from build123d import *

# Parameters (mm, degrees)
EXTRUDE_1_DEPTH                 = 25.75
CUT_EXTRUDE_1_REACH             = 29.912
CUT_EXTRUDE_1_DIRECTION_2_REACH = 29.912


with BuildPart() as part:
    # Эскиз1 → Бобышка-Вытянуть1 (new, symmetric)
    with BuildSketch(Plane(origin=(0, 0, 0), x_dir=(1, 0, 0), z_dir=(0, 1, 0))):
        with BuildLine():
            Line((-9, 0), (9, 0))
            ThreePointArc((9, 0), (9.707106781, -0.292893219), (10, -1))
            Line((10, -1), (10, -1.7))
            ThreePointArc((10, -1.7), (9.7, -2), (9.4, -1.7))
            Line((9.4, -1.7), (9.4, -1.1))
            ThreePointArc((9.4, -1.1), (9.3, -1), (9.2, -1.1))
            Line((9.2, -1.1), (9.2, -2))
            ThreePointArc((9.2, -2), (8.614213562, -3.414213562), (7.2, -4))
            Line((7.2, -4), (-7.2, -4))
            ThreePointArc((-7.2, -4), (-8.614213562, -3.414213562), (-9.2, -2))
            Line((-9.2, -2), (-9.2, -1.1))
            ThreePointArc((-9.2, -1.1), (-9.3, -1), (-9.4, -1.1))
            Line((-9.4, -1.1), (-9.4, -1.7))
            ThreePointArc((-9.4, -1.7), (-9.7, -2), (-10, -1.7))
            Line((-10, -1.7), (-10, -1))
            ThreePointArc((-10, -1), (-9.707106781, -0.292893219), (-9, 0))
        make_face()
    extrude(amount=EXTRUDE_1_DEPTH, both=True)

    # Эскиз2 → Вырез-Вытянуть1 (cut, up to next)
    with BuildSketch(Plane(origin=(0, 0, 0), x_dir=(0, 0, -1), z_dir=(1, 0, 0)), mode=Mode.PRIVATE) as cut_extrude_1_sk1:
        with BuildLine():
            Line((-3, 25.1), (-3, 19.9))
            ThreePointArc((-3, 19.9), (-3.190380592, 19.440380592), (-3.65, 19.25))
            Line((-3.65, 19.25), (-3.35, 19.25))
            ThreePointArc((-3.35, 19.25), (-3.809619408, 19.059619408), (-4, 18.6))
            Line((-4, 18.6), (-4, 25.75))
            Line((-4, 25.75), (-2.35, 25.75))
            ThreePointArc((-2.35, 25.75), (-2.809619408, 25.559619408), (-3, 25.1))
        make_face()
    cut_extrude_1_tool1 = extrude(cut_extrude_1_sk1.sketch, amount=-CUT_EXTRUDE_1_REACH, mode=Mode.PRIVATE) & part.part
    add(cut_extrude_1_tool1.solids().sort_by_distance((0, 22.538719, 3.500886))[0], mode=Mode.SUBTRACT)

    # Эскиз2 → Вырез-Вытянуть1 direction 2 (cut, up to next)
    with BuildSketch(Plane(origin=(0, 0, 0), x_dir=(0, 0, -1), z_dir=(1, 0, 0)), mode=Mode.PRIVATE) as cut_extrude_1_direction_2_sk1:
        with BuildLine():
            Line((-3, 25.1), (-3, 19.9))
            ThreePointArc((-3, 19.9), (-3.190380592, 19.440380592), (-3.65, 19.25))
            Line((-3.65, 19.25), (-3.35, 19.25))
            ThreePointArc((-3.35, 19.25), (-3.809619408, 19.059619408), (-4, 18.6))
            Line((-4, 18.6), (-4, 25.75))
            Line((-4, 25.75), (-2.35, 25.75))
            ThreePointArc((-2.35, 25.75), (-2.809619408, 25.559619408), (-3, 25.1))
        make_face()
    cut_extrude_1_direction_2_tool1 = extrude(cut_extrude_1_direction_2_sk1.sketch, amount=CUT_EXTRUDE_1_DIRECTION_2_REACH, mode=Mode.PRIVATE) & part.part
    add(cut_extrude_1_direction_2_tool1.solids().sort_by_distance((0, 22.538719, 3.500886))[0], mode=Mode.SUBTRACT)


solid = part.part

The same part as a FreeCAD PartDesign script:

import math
import FreeCAD as App
import Part
import Sketcher

V = App.Vector
Q = App.Units.Quantity

doc = App.newDocument("Part")
params = doc.addObject("Spreadsheet::Sheet", "Params")
for row, (alias, value) in enumerate([
    ("sketch1_radius", "1 mm"),
    ("sketch1_radius2", "2 mm"),
    ("sketch1_radius3", "0.3 mm"),
    ("sketch1_radius4", "0.1 mm"),
    ("sketch1_width", "18 mm"),
    ("pad1_length", "51.5 mm"),
    ("sketch2_radius", "0.65 mm"),
    ("sketch2_width", "5.2 mm"),
    ("sketch2_height", "0.3 mm"),
    ("sketch3_radius", "0.65 mm"),
    ("sketch3_width", "5.2 mm"),
    ("sketch3_height", "0.3 mm"),
], start=1):
    params.set(f"A{row}", alias)
    params.set(f"B{row}", "=" + value)
    params.setAlias(f"B{row}", alias)

body = doc.addObject("PartDesign::Body", "Body")

sketch1 = doc.addObject("Sketcher::SketchObject", "Sketch")
body.addObject(sketch1)
sketch1.AttachmentSupport = (doc.XZ_Plane, [""])
sketch1.MapMode = "FlatFace"
sketch1.addGeometry(Part.LineSegment(V(9, 0, 0), V(-9, 0, 0)), False)
sketch1.addGeometry(Part.ArcOfCircle(Part.Circle(V(-9, 1, 0), V(0, 0, 1), 1), math.radians(-180), math.radians(-90)), False)
sketch1.addGeometry(Part.LineSegment(V(-10, 1, 0), V(-10, 1.7, 0)), False)
sketch1.addGeometry(Part.ArcOfCircle(Part.Circle(V(-9.7, 1.7, 0), V(0, 0, 1), 0.3), math.radians(0), math.radians(180)), False)
sketch1.addGeometry(Part.LineSegment(V(-9.4, 1.7, 0), V(-9.4, 1.1, 0)), False)
sketch1.addGeometry(Part.ArcOfCircle(Part.Circle(V(-9.3, 1.1, 0), V(0, 0, 1), 0.1), math.radians(180), math.radians(360)), False)
sketch1.addGeometry(Part.LineSegment(V(-9.2, 1.1, 0), V(-9.2, 2, 0)), False)
sketch1.addGeometry(Part.ArcOfCircle(Part.Circle(V(-7.2, 2, 0), V(0, 0, 1), 2), math.radians(90), math.radians(180)), False)
sketch1.addGeometry(Part.LineSegment(V(-7.2, 4, 0), V(7.2, 4, 0)), False)
sketch1.addGeometry(Part.ArcOfCircle(Part.Circle(V(7.2, 2, 0), V(0, 0, 1), 2), math.radians(0), math.radians(90)), False)
sketch1.addGeometry(Part.LineSegment(V(9.2, 2, 0), V(9.2, 1.1, 0)), False)
sketch1.addGeometry(Part.ArcOfCircle(Part.Circle(V(9.3, 1.1, 0), V(0, 0, 1), 0.1), math.radians(180), math.radians(360)), False)
sketch1.addGeometry(Part.LineSegment(V(9.4, 1.1, 0), V(9.4, 1.7, 0)), False)
sketch1.addGeometry(Part.ArcOfCircle(Part.Circle(V(9.7, 1.7, 0), V(0, 0, 1), 0.3), math.radians(0), math.radians(180)), False)
sketch1.addGeometry(Part.LineSegment(V(10, 1.7, 0), V(10, 1, 0)), False)
sketch1.addGeometry(Part.ArcOfCircle(Part.Circle(V(9, 1, 0), V(0, 0, 1), 1), math.radians(-90), math.radians(0)), False)
sketch1.addConstraint(Sketcher.Constraint("Tangent", 0, 2, 1, 2))
sketch1.addConstraint(Sketcher.Constraint("Tangent", 1, 1, 2, 1))
sketch1.addConstraint(Sketcher.Constraint("Tangent", 2, 2, 3, 2))
sketch1.addConstraint(Sketcher.Constraint("Tangent", 3, 1, 4, 1))
sketch1.addConstraint(Sketcher.Constraint("Tangent", 4, 2, 5, 1))
sketch1.addConstraint(Sketcher.Constraint("Tangent", 5, 2, 6, 1))
sketch1.addConstraint(Sketcher.Constraint("Tangent", 6, 2, 7, 2))
sketch1.addConstraint(Sketcher.Constraint("Tangent", 7, 1, 8, 1))
sketch1.addConstraint(Sketcher.Constraint("Tangent", 8, 2, 9, 2))
sketch1.addConstraint(Sketcher.Constraint("Tangent", 9, 1, 10, 1))
sketch1.addConstraint(Sketcher.Constraint("Tangent", 10, 2, 11, 1))
sketch1.addConstraint(Sketcher.Constraint("Tangent", 11, 2, 12, 1))
sketch1.addConstraint(Sketcher.Constraint("Tangent", 12, 2, 13, 2))
sketch1.addConstraint(Sketcher.Constraint("Tangent", 13, 1, 14, 1))
sketch1.addConstraint(Sketcher.Constraint("Tangent", 14, 2, 15, 2))
sketch1.addConstraint(Sketcher.Constraint("Tangent", 15, 1, 0, 1))
sketch1.addConstraint(Sketcher.Constraint("Horizontal", 0))
sketch1.addConstraint(Sketcher.Constraint("Vertical", 2))
sketch1.addConstraint(Sketcher.Constraint("Vertical", 4))
sketch1.addConstraint(Sketcher.Constraint("Vertical", 6))
sketch1.addConstraint(Sketcher.Constraint("Horizontal", 8))
sketch1.addConstraint(Sketcher.Constraint("Vertical", 10))
sketch1.addConstraint(Sketcher.Constraint("Vertical", 12))
sketch1.addConstraint(Sketcher.Constraint("Vertical", 14))
sketch1.addConstraint(Sketcher.Constraint("Equal", 7, 9))
sketch1.addConstraint(Sketcher.Constraint("Equal", 5, 11))
sketch1.addConstraint(Sketcher.Constraint("Equal", 3, 13))
sketch1.addConstraint(Sketcher.Constraint("Equal", 1, 15))
sketch1.addConstraint(Sketcher.Constraint("Symmetric", 0, 2, 15, 1, -1, 1))
sketch1.addConstraint(Sketcher.Constraint("Horizontal", 5, 3, 11, 3))
sketch1.addConstraint(Sketcher.Constraint("Horizontal", 3, 3, 13, 3))
sketch1.addConstraint(Sketcher.Constraint("Radius", 1, Q("1 mm")))
sketch1.addConstraint(Sketcher.Constraint("Radius", 7, Q("2 mm")))
sketch1.addConstraint(Sketcher.Constraint("Radius", 3, Q("0.3 mm")))
sketch1.addConstraint(Sketcher.Constraint("Radius", 5, Q("0.1 mm")))
sketch1.addConstraint(Sketcher.Constraint("DistanceX", 0, 2, 0, 1, Q("18 mm")))
sketch1.addConstraint(Sketcher.Constraint("DistanceY", 2, 1, 2, 2, Q("0.7 mm")))
sketch1.addConstraint(Sketcher.Constraint("DistanceY", 4, 2, 4, 1, Q("0.6 mm")))
sketch1.addConstraint(Sketcher.Constraint("DistanceY", 6, 1, 6, 2, Q("0.9 mm")))
sketch1.setExpression("Constraints[31]", "Params.sketch1_radius")
sketch1.setExpression("Constraints[32]", "Params.sketch1_radius2")
sketch1.setExpression("Constraints[33]", "Params.sketch1_radius3")
sketch1.setExpression("Constraints[34]", "Params.sketch1_radius4")
sketch1.setExpression("Constraints[35]", "Params.sketch1_width")
pad1 = doc.addObject("PartDesign::Pad", "Pad")
body.addObject(pad1)
pad1.Profile = sketch1
pad1.setExpression("Length", "Params.pad1_length")
pad1.Midplane = True

sketch2 = doc.addObject("Sketcher::SketchObject", "Sketch001")
body.addObject(sketch2)
sketch2.AttachmentSupport = (doc.YZ_Plane, [""])
sketch2.MapMode = "FlatFace"
sketch2.addGeometry(Part.LineSegment(V(19.9, 3, 0), V(25.1, 3, 0)), False)
sketch2.addGeometry(Part.ArcOfCircle(Part.Circle(V(25.1, 2.35, 0), V(0, 0, 1), 0.65), math.radians(0), math.radians(90)), False)
sketch2.addGeometry(Part.LineSegment(V(25.75, 2.35, 0), V(25.75, 4, 0)), False)
sketch2.addGeometry(Part.LineSegment(V(25.75, 4, 0), V(18.6, 4, 0)), False)
sketch2.addGeometry(Part.ArcOfCircle(Part.Circle(V(18.6, 3.35, 0), V(0, 0, 1), 0.65), math.radians(0), math.radians(90)), False)
sketch2.addGeometry(Part.LineSegment(V(19.25, 3.35, 0), V(19.25, 3.65, 0)), False)
sketch2.addGeometry(Part.ArcOfCircle(Part.Circle(V(19.9, 3.65, 0), V(0, 0, 1), 0.65), math.radians(180), math.radians(270)), False)
sketch2.addConstraint(Sketcher.Constraint("Tangent", 0, 2, 1, 2))
sketch2.addConstraint(Sketcher.Constraint("Tangent", 1, 1, 2, 1))
sketch2.addConstraint(Sketcher.Constraint("Coincident", 2, 2, 3, 1))
sketch2.addConstraint(Sketcher.Constraint("Tangent", 3, 2, 4, 2))
sketch2.addConstraint(Sketcher.Constraint("Tangent", 4, 1, 5, 1))
sketch2.addConstraint(Sketcher.Constraint("Tangent", 5, 2, 6, 1))
sketch2.addConstraint(Sketcher.Constraint("Tangent", 6, 2, 0, 1))
sketch2.addConstraint(Sketcher.Constraint("Horizontal", 0))
sketch2.addConstraint(Sketcher.Constraint("Vertical", 2))
sketch2.addConstraint(Sketcher.Constraint("Horizontal", 3))
sketch2.addConstraint(Sketcher.Constraint("Vertical", 5))
sketch2.addConstraint(Sketcher.Constraint("Equal", 1, 4))
sketch2.addConstraint(Sketcher.Constraint("Equal", 4, 6))
sketch2.addConstraint(Sketcher.Constraint("Radius", 1, Q("0.65 mm")))
sketch2.addConstraint(Sketcher.Constraint("DistanceX", 0, 1, 0, 2, Q("5.2 mm")))
sketch2.addConstraint(Sketcher.Constraint("DistanceY", 5, 1, 5, 2, Q("0.3 mm")))
sketch2.addConstraint(Sketcher.Constraint("DistanceY", -1, 1, 0, 2, Q("3 mm")))
sketch2.addConstraint(Sketcher.Constraint("DistanceX", -1, 1, 1, 3, Q("25.1 mm")))
sketch2.setExpression("Constraints[13]", "Params.sketch2_radius")
sketch2.setExpression("Constraints[14]", "Params.sketch2_width")
sketch2.setExpression("Constraints[15]", "Params.sketch2_height")
pocket1 = doc.addObject("PartDesign::Pocket", "Pocket")
body.addObject(pocket1)
pocket1.Profile = sketch2
pocket1.Type = "UpToFirst"

sketch3 = doc.addObject("Sketcher::SketchObject", "Sketch002")
body.addObject(sketch3)
sketch3.AttachmentSupport = (doc.YZ_Plane, [""])
sketch3.MapMode = "FlatFace"
sketch3.addGeometry(Part.LineSegment(V(19.9, 3, 0), V(25.1, 3, 0)), False)
sketch3.addGeometry(Part.ArcOfCircle(Part.Circle(V(25.1, 2.35, 0), V(0, 0, 1), 0.65), math.radians(0), math.radians(90)), False)
sketch3.addGeometry(Part.LineSegment(V(25.75, 2.35, 0), V(25.75, 4, 0)), False)
sketch3.addGeometry(Part.LineSegment(V(25.75, 4, 0), V(18.6, 4, 0)), False)
sketch3.addGeometry(Part.ArcOfCircle(Part.Circle(V(18.6, 3.35, 0), V(0, 0, 1), 0.65), math.radians(0), math.radians(90)), False)
sketch3.addGeometry(Part.LineSegment(V(19.25, 3.35, 0), V(19.25, 3.65, 0)), False)
sketch3.addGeometry(Part.ArcOfCircle(Part.Circle(V(19.9, 3.65, 0), V(0, 0, 1), 0.65), math.radians(180), math.radians(270)), False)
sketch3.addConstraint(Sketcher.Constraint("Tangent", 0, 2, 1, 2))
sketch3.addConstraint(Sketcher.Constraint("Tangent", 1, 1, 2, 1))
sketch3.addConstraint(Sketcher.Constraint("Coincident", 2, 2, 3, 1))
sketch3.addConstraint(Sketcher.Constraint("Tangent", 3, 2, 4, 2))
sketch3.addConstraint(Sketcher.Constraint("Tangent", 4, 1, 5, 1))
sketch3.addConstraint(Sketcher.Constraint("Tangent", 5, 2, 6, 1))
sketch3.addConstraint(Sketcher.Constraint("Tangent", 6, 2, 0, 1))
sketch3.addConstraint(Sketcher.Constraint("Horizontal", 0))
sketch3.addConstraint(Sketcher.Constraint("Vertical", 2))
sketch3.addConstraint(Sketcher.Constraint("Horizontal", 3))
sketch3.addConstraint(Sketcher.Constraint("Vertical", 5))
sketch3.addConstraint(Sketcher.Constraint("Equal", 1, 4))
sketch3.addConstraint(Sketcher.Constraint("Equal", 4, 6))
sketch3.addConstraint(Sketcher.Constraint("Radius", 1, Q("0.65 mm")))
sketch3.addConstraint(Sketcher.Constraint("DistanceX", 0, 1, 0, 2, Q("5.2 mm")))
sketch3.addConstraint(Sketcher.Constraint("DistanceY", 5, 1, 5, 2, Q("0.3 mm")))
sketch3.addConstraint(Sketcher.Constraint("DistanceY", -1, 1, 0, 2, Q("3 mm")))
sketch3.addConstraint(Sketcher.Constraint("DistanceX", -1, 1, 1, 3, Q("25.1 mm")))
sketch3.setExpression("Constraints[13]", "Params.sketch3_radius")
sketch3.setExpression("Constraints[14]", "Params.sketch3_width")
sketch3.setExpression("Constraints[15]", "Params.sketch3_height")
pocket2 = doc.addObject("PartDesign::Pocket", "Pocket001")
body.addObject(pocket2)
pocket2.Profile = sketch3
pocket2.Type = "UpToFirst"
pocket2.Reversed = True

doc.recompute()
